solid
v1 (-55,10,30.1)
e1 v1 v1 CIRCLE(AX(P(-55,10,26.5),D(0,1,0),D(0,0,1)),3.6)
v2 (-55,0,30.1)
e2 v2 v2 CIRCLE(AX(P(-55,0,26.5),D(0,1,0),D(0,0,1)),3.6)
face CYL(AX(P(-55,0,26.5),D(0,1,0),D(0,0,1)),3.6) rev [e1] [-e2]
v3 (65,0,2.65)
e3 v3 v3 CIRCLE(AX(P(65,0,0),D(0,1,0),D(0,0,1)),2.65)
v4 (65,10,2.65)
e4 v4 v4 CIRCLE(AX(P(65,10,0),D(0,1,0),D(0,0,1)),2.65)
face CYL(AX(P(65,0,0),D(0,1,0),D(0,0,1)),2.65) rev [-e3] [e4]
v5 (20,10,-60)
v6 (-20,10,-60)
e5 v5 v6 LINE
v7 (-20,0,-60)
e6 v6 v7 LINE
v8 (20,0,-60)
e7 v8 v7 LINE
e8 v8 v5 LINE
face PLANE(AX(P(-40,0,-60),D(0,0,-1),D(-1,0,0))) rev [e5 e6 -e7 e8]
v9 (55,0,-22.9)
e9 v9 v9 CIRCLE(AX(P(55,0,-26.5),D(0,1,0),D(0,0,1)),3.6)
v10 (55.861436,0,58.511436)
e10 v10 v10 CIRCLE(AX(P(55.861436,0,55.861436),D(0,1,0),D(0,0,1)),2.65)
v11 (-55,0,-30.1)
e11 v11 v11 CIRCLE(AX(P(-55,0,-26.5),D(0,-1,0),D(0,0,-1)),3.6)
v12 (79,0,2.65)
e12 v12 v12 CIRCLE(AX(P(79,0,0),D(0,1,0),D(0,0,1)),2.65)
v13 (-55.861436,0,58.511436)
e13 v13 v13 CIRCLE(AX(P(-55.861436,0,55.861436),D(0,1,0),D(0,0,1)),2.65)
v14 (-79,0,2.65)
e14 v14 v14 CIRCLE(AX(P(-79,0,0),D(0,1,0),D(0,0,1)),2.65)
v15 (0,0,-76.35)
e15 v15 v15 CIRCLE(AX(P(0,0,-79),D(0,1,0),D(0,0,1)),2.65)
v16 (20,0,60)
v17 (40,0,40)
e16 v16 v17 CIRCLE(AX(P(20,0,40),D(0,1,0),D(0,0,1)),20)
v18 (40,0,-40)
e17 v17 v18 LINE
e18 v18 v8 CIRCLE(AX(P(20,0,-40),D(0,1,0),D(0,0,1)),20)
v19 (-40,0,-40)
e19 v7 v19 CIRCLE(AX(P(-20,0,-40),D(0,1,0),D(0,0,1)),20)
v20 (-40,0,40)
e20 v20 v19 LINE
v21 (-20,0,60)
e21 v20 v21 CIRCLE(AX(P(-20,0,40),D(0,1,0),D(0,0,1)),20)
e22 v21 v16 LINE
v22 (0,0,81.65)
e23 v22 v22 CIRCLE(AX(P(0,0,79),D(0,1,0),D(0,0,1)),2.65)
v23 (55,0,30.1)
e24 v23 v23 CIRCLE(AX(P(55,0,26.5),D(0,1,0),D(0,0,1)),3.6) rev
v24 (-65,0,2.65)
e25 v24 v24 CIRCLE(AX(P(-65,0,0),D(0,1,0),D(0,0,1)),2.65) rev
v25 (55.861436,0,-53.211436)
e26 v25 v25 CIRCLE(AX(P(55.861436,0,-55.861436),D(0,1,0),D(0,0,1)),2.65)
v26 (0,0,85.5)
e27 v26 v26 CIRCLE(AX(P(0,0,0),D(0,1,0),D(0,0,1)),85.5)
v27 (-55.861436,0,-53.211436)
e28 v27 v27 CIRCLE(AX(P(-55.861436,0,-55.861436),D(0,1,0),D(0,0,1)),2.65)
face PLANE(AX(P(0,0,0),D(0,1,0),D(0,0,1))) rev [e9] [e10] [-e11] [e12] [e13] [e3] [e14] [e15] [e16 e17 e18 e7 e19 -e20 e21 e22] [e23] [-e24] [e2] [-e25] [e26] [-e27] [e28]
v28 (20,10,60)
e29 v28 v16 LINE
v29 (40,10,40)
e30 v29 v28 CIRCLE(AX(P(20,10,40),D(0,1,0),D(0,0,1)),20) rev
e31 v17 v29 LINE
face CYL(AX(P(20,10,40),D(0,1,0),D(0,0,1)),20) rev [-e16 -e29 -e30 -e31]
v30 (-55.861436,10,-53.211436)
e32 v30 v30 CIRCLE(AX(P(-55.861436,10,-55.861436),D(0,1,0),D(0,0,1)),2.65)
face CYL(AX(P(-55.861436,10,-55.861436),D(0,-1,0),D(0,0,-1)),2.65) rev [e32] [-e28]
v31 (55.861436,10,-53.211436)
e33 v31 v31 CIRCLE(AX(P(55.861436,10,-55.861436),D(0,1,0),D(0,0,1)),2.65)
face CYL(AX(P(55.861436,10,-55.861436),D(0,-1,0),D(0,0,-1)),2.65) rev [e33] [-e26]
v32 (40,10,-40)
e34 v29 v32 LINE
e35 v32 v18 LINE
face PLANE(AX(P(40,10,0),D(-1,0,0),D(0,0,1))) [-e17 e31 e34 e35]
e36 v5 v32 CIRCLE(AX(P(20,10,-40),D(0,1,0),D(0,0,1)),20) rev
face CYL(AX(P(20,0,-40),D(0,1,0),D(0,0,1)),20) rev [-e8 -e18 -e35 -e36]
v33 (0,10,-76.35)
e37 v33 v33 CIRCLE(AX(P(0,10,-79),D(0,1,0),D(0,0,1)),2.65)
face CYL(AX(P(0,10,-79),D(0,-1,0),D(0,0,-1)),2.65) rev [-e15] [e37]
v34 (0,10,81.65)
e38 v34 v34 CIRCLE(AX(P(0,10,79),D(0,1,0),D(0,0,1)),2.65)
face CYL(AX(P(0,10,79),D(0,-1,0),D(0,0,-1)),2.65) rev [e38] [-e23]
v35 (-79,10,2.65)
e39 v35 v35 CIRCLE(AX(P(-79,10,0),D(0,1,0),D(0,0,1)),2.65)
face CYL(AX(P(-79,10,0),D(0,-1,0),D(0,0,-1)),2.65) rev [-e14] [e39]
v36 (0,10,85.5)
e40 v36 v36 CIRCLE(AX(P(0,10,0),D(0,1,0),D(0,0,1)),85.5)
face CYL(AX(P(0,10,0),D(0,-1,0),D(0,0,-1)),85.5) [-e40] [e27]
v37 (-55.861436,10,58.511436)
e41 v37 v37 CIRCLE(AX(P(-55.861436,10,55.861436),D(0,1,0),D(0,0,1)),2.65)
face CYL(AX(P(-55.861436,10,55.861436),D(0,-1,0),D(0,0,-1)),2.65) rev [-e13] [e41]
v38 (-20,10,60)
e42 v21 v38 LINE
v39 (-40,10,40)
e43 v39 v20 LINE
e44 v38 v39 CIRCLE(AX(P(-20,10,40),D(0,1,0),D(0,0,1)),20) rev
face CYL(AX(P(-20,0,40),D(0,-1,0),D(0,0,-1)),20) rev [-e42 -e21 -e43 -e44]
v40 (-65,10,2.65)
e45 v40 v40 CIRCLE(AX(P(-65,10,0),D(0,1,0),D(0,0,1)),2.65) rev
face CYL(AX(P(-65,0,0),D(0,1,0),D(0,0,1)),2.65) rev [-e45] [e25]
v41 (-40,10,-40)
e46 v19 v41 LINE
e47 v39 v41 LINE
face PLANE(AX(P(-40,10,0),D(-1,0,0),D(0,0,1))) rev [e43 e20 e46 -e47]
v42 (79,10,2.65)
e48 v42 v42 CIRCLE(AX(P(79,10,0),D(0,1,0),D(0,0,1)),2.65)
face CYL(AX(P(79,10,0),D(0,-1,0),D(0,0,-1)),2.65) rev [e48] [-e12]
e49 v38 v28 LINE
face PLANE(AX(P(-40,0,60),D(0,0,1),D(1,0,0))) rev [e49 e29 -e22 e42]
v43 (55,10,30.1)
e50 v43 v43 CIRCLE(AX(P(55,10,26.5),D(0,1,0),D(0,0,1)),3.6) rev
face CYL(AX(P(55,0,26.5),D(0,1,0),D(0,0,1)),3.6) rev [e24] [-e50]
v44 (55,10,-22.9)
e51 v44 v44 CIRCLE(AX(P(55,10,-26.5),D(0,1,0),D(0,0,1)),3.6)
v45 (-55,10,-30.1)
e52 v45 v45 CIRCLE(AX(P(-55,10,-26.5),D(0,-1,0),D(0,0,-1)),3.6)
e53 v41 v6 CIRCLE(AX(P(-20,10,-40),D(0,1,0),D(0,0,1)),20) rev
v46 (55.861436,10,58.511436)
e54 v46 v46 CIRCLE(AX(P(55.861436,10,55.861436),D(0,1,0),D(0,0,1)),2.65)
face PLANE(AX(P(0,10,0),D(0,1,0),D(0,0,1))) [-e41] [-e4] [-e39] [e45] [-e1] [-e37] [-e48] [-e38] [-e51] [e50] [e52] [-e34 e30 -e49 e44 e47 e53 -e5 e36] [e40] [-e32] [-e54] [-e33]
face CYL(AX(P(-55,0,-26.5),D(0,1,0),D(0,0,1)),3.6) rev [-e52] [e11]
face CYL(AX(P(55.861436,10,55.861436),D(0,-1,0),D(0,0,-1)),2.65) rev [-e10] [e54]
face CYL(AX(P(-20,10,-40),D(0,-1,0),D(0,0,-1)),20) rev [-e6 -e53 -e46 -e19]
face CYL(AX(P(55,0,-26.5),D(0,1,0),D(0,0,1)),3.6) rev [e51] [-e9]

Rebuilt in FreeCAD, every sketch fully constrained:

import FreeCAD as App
import Part
import Sketcher
from FreeCAD import Vector


def edges_at(feature, points):
    """Names of the edges that pass closest to the given points."""
    edges = feature.Shape.Edges
    near = lambda p: min(range(len(edges)), key=lambda i: edges[i].distToShape(Part.Vertex(*p))[0])
    return sorted({f"Edge{near(p) + 1}" for p in points})


def add_polygon(sketch, points):
    """Adds a closed chain of lines whose ends are joined by coincident constraints."""
    first, n = sketch.GeometryCount, len(points)
    for a, b in zip(points, points[1:] + points[:1]):
        sketch.addGeometry(Part.LineSegment(App.Vector(*a, 0), App.Vector(*b, 0)), False)
    for i in range(n):
        sketch.addConstraint(Sketcher.Constraint("Coincident", first + i, 2, first + (i + 1) % n, 1))

doc = App.newDocument("Part")
params = doc.addObject("Spreadsheet::Sheet", "Params")
for row, (alias, value) in enumerate([
    ("sketch1_diameter", "171 mm"),
    ("sketch1_diameter2", "5.3 mm"),
    ("sketch1_width", "80 mm"),
    ("sketch1_height", "100 mm"),
    ("pad1_length", "10 mm"),
    ("sketch2_diameter", "7.2 mm"),
    ("sketch2_diameter2", "5.3 mm"),
    ("pocket1_length", "10 mm"),
    ("sketch3_width", "80 mm"),
    ("sketch3_height", "120 mm"),
    ("pocket2_length", "10 mm"),
    ("fillet_radius", "20 mm"),
], start=1):
    params.set(f"A{row}", alias)
    params.set(f"B{row}", "=" + value)
    params.setAlias(f"B{row}", alias)

body = doc.addObject("PartDesign::Body", "Body")

# Sketch on XZ plane
sketch1 = body.newObject("Sketcher::SketchObject", "Sketch")
sketch1.AttachmentSupport = (doc.getObject("XZ_Plane"), [""])
sketch1.MapMode = "FlatFace"
sketch1.addGeometry(Part.Circle(Vector(0, 0, 0), Vector(0, 0, 1), 85.5), False)  # 0
sketch1.addGeometry(Part.Circle(Vector(-55.861436, -55.861436, 0), Vector(0, 0, 1), 2.65), False)  # 1
sketch1.addGeometry(Part.Circle(Vector(0, -79, 0), Vector(0, 0, 1), 2.65), False)  # 2
sketch1.addGeometry(Part.Circle(Vector(-79, 0, 0), Vector(0, 0, 1), 2.65), False)  # 3
sketch1.addGeometry(Part.Circle(Vector(-55.861436, 55.861436, 0), Vector(0, 0, 1), 2.65), False)  # 4
sketch1.addGeometry(Part.Circle(Vector(55.861436, -55.861436, 0), Vector(0, 0, 1), 2.65), False)  # 5
sketch1.addGeometry(Part.Circle(Vector(79, 0, 0), Vector(0, 0, 1), 2.65), False)  # 6
add_polygon(sketch1, [(40, 50), (-40, 50), (-40, -50), (40, -50)])  # lines 7-10
sketch1.addGeometry(Part.Circle(Vector(0, 79, 0), Vector(0, 0, 1), 2.65), False)  # 11
sketch1.addGeometry(Part.Circle(Vector(55.861436, 55.861436, 0), Vector(0, 0, 1), 2.65), False)  # 12
sketch1.addConstraint([
    Sketcher.Constraint("Horizontal", 7),
    Sketcher.Constraint("Vertical", 8),
    Sketcher.Constraint("Horizontal", 9),
    Sketcher.Constraint("Vertical", 10),
    Sketcher.Constraint("Coincident", 0, 3, -1, 1),
    Sketcher.Constraint("Equal", 1, 2),
    Sketcher.Constraint("Equal", 2, 3),
    Sketcher.Constraint("Equal", 3, 4),
    Sketcher.Constraint("Equal", 4, 5),
    Sketcher.Constraint("Equal", 5, 6),
    Sketcher.Constraint("Equal", 6, 11),
    Sketcher.Constraint("Equal", 11, 12),
    Sketcher.Constraint("Symmetric", 4, 3, 5, 3, -1, 1),
    Sketcher.Constraint("Symmetric", 3, 3, 6, 3, -1, 1),
    Sketcher.Constraint("Symmetric", 2, 3, 11, 3, -1, 1),
    Sketcher.Constraint("Symmetric", 1, 3, 12, 3, -1, 1),
    Sketcher.Constraint("Symmetric", 7, 2, 9, 2, -1, 1),
    Sketcher.Constraint("Symmetric", 1, 3, 5, 3, -2),
    Sketcher.Constraint("PointOnObject", 2, 3, -2),
    Sketcher.Constraint("PointOnObject", 3, 3, -1),
    Sketcher.Constraint("Diameter", 0, 171.0),
    Sketcher.Constraint("Diameter", 1, 5.3),
    Sketcher.Constraint("DistanceX", 7, 2, 7, 1, 80.0),
    Sketcher.Constraint("DistanceY", 8, 2, 8, 1, 100.0),
    Sketcher.Constraint("DistanceY", 2, 3, -1, 1, 79.0),
    Sketcher.Constraint("DistanceX", 3, 3, -1, 1, 79.0),
    Sketcher.Constraint("DistanceY", 1, 3, 4, 3, 111.722871),
    Sketcher.Constraint("DistanceX", 1, 3, 5, 3, 111.722871),
])
sketch1.setExpression("Constraints[24]", "Params.sketch1_diameter")
sketch1.setExpression("Constraints[25]", "Params.sketch1_diameter2")
sketch1.setExpression("Constraints[26]", "Params.sketch1_width")
sketch1.setExpression("Constraints[27]", "Params.sketch1_height")
pad1 = body.newObject("PartDesign::Pad", "Pad")
pad1.Profile = sketch1
pad1.setExpression("Length", "Params.pad1_length")
pad1.Reversed = True

# Sketch on XZ plane
sketch2 = body.newObject("Sketcher::SketchObject", "Sketch001")
sketch2.AttachmentSupport = (doc.getObject("XZ_Plane"), [""])
sketch2.MapMode = "FlatFace"
sketch2.AttachmentOffset = App.Placement(Vector(0, 0, -10), App.Rotation())
sketch2.addGeometry([
    Part.Circle(Vector(55, -26.5, 0), Vector(0, 0, 1), 3.6),  # 0
    Part.Circle(Vector(65, 0, 0), Vector(0, 0, 1), 2.65),  # 1
    Part.Circle(Vector(55, 26.5, 0), Vector(0, 0, 1), 3.6),  # 2
    Part.Circle(Vector(-55, 26.5, 0), Vector(0, 0, 1), 3.6),  # 3
    Part.Circle(Vector(-55, -26.5, 0), Vector(0, 0, 1), 3.6),  # 4
    Part.Circle(Vector(-65, 0, 0), Vector(0, 0, 1), 2.65),  # 5
], False)
sketch2.addConstraint([
    Sketcher.Constraint("Equal", 0, 2),
    Sketcher.Constraint("Equal", 2, 3),
    Sketcher.Constraint("Equal", 3, 4),
    Sketcher.Constraint("Equal", 1, 5),
    Sketcher.Constraint("Symmetric", 0, 3, 3, 3, -1, 1),
    Sketcher.Constraint("Symmetric", 2, 3, 4, 3, -1, 1),
    Sketcher.Constraint("Symmetric", 1, 3, 5, 3, -1, 1),
    Sketcher.Constraint("Symmetric", 2, 3, 3, 3, -2),
    Sketcher.Constraint("PointOnObject", 1, 3, -1),
    Sketcher.Constraint("Diameter", 0, 7.2),
    Sketcher.Constraint("Diameter", 1, 5.3),
    Sketcher.Constraint("DistanceX", -1, 1, 0, 3, 55.0),
    Sketcher.Constraint("DistanceX", -1, 1, 1, 3, 65.0),
    Sketcher.Constraint("DistanceY", 0, 3, 2, 3, 53.0),
])
sketch2.setExpression("Constraints[9]", "Params.sketch2_diameter")
sketch2.setExpression("Constraints[10]", "Params.sketch2_diameter2")
pocket1 = body.newObject("PartDesign::Pocket", "Pocket")
pocket1.Profile = sketch2
pocket1.setExpression("Length", "Params.pocket1_length")
pocket1.Reversed = True

# Sketch on XZ plane
sketch3 = body.newObject("Sketcher::SketchObject", "Sketch002")
sketch3.AttachmentSupport = (doc.getObject("XZ_Plane"), [""])
sketch3.MapMode = "FlatFace"
sketch3.AttachmentOffset = App.Placement(Vector(0, 0, -10), App.Rotation())
add_polygon(sketch3, [(-40, -60), (-40, 60), (40, 60), (40, -60)])  # lines 0-3
sketch3.addConstraint([
    Sketcher.Constraint("Vertical", 0),
    Sketcher.Constraint("Horizontal", 1),
    Sketcher.Constraint("Vertical", 2),
    Sketcher.Constraint("Horizontal", 3),
    Sketcher.Constraint("Symmetric", 0, 2, 2, 2, -1, 1),
    Sketcher.Constraint("DistanceX", 1, 1, 1, 2, 80.0),
    Sketcher.Constraint("DistanceY", 0, 1, 0, 2, 120.0),
])
sketch3.setExpression("Constraints[9]", "Params.sketch3_width")
sketch3.setExpression("Constraints[10]", "Params.sketch3_height")
pocket2 = body.newObject("PartDesign::Pocket", "Pocket001")
pocket2.Profile = sketch3
pocket2.setExpression("Length", "Params.pocket2_length")
pocket2.Reversed = True
doc.recompute()

fillet = body.newObject("PartDesign::Fillet", "Fillet")
fillet.Base = (pocket2, edges_at(pocket2, [
    (40, 5, -60),
    (40, 5, 60),
    (-40, 5, 60),
    (-40, 5, -60),
]))
fillet.setExpression("Radius", "Params.fillet_radius")

doc.recompute()
